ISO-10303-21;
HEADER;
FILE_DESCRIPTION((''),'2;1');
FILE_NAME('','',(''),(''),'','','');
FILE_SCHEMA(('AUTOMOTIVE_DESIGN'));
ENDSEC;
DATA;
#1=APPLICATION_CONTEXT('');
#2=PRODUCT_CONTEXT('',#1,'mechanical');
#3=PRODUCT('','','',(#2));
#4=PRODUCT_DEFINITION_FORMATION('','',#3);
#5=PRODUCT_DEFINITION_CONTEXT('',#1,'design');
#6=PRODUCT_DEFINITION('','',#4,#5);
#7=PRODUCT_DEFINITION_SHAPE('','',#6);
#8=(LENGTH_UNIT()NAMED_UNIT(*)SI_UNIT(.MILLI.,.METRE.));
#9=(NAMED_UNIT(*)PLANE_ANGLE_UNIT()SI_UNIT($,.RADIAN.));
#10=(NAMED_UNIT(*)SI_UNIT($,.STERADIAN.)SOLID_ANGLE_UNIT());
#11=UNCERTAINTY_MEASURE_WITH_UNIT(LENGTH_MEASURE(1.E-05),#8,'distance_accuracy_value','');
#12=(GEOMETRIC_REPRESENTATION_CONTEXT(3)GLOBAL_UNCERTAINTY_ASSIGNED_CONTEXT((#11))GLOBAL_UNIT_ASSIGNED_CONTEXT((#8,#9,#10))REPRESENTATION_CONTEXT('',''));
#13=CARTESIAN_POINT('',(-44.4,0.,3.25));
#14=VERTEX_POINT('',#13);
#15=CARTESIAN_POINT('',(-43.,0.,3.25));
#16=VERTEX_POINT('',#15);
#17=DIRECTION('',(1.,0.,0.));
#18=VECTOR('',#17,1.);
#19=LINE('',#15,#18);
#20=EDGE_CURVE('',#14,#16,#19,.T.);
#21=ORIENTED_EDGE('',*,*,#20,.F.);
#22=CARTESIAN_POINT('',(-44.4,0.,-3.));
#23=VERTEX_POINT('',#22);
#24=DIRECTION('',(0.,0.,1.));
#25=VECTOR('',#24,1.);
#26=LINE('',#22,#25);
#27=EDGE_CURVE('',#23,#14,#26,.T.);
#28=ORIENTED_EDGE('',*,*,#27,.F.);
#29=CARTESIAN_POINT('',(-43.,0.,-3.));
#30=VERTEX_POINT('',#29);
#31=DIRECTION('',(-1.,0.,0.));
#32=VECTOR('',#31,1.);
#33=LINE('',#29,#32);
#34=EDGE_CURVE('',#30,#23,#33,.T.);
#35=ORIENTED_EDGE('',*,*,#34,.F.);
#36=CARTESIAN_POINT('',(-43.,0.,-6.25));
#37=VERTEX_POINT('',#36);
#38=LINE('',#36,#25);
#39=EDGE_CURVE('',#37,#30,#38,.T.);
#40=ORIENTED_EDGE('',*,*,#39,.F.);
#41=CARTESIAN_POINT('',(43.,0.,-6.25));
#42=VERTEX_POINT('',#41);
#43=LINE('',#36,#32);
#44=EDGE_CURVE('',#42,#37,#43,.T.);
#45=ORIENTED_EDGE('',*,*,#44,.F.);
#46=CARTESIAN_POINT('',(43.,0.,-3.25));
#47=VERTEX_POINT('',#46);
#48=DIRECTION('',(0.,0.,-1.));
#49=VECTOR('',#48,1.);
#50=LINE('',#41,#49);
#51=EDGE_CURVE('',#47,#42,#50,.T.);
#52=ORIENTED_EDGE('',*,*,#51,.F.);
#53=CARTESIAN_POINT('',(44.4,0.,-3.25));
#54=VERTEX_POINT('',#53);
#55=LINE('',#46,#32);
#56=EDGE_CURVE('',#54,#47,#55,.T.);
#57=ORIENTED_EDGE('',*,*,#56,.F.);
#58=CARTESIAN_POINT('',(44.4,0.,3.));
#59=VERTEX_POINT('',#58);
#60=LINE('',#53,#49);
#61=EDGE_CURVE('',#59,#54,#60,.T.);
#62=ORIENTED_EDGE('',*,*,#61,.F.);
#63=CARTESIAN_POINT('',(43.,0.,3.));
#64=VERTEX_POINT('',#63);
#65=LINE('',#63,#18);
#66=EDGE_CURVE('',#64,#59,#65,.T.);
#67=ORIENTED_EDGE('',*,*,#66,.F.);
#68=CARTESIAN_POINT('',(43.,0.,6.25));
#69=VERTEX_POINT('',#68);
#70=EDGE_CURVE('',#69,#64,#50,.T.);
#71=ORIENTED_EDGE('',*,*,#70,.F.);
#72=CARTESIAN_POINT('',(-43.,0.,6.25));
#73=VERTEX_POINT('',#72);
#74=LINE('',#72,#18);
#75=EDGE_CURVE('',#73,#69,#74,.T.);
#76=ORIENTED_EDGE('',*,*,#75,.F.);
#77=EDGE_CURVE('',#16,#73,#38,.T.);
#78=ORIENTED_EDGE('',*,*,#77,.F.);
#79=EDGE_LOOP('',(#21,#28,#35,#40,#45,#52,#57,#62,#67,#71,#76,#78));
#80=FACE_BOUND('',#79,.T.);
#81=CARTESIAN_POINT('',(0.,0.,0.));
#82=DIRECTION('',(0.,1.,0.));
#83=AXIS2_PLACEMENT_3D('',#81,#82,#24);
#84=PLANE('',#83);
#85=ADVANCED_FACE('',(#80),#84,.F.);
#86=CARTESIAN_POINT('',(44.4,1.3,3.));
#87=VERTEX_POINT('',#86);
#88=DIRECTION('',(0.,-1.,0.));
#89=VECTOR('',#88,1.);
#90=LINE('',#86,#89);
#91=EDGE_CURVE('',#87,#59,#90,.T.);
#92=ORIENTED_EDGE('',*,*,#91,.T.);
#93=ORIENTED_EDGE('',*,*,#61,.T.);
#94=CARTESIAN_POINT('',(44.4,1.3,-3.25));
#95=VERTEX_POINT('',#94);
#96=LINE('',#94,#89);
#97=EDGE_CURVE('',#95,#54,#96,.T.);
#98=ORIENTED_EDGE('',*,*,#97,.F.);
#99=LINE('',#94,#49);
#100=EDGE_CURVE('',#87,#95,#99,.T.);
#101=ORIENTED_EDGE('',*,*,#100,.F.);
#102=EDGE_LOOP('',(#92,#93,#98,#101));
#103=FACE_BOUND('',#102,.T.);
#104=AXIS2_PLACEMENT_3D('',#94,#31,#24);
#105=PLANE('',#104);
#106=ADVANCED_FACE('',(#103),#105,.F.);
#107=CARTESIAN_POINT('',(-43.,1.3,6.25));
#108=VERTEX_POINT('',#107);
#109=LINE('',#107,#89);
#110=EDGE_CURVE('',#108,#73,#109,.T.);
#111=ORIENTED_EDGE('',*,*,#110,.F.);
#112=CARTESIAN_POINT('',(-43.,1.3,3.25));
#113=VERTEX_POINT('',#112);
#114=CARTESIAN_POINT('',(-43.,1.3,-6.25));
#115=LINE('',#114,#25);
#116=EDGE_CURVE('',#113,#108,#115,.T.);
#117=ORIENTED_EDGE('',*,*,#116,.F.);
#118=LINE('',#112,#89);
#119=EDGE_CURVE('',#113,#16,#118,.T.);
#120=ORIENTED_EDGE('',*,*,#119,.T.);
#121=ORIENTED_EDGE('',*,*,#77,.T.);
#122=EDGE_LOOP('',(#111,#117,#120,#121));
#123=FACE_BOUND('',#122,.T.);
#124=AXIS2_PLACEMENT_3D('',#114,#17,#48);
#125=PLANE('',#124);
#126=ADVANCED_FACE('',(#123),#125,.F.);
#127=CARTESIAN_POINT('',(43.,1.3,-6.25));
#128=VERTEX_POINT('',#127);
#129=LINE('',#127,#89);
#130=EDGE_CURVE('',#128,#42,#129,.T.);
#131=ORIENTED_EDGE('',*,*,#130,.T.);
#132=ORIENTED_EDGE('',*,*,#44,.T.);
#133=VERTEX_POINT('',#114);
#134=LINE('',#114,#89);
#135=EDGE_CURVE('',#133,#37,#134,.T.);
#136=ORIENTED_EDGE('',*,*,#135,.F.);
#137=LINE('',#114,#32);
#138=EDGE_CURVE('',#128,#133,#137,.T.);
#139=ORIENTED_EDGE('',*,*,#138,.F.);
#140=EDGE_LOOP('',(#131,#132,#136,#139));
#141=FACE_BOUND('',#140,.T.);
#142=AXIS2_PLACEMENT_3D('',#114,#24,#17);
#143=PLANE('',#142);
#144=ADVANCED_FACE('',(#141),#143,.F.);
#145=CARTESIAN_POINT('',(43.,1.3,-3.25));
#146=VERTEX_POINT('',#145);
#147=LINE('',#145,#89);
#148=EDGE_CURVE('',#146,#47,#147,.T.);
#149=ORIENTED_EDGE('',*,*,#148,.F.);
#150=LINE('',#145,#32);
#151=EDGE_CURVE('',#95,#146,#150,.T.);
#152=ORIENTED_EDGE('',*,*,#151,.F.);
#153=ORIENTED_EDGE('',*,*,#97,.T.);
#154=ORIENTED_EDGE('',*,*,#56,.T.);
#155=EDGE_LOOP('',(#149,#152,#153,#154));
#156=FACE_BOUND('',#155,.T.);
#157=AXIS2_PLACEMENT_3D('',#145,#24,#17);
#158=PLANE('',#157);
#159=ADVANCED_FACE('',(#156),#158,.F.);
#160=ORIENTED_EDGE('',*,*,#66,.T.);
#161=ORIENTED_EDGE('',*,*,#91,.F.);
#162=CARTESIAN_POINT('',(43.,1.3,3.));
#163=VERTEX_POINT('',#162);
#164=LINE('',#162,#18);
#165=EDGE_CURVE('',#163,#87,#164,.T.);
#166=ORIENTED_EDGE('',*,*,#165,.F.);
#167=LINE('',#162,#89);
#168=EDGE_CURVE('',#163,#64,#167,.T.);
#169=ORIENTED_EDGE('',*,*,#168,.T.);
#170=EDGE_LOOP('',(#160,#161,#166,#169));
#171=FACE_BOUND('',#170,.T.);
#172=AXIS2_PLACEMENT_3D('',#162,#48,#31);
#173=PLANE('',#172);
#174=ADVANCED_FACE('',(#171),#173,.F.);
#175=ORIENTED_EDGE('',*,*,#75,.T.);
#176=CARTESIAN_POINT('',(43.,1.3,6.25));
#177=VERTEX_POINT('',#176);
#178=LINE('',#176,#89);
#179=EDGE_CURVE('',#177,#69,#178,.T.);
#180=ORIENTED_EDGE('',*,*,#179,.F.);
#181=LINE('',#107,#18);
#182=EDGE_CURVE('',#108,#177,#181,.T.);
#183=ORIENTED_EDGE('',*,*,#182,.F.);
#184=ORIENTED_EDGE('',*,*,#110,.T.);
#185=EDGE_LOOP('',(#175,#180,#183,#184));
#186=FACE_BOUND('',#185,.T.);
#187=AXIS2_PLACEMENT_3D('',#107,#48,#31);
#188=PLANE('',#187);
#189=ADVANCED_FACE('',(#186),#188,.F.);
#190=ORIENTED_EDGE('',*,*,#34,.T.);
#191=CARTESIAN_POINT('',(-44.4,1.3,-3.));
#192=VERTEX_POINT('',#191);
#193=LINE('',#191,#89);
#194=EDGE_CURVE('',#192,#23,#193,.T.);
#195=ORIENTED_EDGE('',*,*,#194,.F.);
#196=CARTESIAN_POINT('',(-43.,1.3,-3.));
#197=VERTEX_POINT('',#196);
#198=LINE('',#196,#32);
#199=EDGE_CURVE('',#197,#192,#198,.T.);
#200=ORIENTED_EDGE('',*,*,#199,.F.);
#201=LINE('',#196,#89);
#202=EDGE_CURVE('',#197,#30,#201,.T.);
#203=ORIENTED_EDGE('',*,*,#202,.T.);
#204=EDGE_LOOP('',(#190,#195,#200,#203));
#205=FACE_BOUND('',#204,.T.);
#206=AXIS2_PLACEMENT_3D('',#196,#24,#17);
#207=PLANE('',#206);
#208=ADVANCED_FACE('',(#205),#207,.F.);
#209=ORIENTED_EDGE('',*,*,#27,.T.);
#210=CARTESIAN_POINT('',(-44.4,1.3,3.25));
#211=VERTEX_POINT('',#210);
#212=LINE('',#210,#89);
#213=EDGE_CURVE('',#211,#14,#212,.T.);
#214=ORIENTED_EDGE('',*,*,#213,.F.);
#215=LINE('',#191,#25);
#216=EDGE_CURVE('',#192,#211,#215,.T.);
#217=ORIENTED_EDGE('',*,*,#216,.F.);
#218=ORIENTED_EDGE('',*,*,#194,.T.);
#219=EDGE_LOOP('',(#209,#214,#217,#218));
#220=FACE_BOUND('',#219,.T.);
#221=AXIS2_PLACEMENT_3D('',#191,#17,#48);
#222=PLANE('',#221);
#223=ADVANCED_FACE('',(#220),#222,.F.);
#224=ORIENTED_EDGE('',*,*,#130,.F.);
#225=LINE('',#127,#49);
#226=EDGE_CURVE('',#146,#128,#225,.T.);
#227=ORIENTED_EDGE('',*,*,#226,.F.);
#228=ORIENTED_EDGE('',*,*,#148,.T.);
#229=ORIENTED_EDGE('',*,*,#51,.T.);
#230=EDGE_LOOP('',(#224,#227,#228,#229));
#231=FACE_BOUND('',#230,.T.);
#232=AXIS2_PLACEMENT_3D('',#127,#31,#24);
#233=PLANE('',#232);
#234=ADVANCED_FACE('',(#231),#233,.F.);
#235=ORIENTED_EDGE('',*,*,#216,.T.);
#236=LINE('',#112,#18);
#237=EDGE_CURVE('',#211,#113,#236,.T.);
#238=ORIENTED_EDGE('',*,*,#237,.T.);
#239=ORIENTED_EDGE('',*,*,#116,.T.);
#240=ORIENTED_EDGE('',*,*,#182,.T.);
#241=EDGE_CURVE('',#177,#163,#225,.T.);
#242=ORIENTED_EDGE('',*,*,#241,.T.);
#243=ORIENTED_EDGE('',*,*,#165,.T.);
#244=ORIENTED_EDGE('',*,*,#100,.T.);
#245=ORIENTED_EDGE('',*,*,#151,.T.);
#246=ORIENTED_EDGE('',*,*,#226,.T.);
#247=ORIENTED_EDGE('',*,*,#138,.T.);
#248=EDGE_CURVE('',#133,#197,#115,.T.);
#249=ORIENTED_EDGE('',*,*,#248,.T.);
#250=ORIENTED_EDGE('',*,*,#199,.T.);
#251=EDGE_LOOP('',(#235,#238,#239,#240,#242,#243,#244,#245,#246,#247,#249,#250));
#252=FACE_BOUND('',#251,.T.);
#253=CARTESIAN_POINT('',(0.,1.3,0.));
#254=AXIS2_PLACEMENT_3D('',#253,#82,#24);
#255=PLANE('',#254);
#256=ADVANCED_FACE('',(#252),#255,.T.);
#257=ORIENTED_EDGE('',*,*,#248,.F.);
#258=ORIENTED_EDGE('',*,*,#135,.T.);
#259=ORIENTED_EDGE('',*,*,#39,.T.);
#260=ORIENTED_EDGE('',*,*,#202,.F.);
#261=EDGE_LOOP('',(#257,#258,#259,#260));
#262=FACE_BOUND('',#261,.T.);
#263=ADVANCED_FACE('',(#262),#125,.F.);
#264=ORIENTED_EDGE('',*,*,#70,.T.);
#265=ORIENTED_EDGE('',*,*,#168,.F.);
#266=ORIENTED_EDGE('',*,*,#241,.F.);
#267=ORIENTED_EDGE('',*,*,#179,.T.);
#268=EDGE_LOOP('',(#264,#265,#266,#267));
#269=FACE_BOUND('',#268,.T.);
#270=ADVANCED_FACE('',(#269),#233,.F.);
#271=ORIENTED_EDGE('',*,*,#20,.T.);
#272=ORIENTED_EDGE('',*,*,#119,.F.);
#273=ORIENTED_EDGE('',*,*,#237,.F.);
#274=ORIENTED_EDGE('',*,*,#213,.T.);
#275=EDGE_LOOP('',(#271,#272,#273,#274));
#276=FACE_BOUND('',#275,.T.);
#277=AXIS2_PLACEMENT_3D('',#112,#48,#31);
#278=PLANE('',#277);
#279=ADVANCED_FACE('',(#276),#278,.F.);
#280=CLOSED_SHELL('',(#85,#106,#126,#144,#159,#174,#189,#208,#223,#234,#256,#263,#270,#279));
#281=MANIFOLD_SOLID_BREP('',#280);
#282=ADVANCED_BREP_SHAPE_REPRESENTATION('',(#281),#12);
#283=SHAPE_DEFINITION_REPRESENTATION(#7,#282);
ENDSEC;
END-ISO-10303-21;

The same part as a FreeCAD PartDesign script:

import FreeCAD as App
import Part
import Sketcher

V = App.Vector

doc = App.newDocument("Part")
body = doc.addObject("PartDesign::Body", "Body")

# Sketch on XZ plane
sketch1 = doc.addObject("Sketcher::SketchObject", "Sketch")
body.addObject(sketch1)
sketch1.AttachmentSupport = (doc.XZ_Plane, [""])
sketch1.MapMode = "FlatFace"
sketch1.addGeometry(Part.LineSegment(V(-43, -6, 0), V(-43, 6, 0)), False)
sketch1.addGeometry(Part.LineSegment(V(-43, 6, 0), V(43, 6, 0)), False)
sketch1.addGeometry(Part.LineSegment(V(43, 6, 0), V(43, -6, 0)), False)
sketch1.addGeometry(Part.LineSegment(V(43, -6, 0), V(-43, -6, 0)), False)
sketch1.addConstraint(Sketcher.Constraint("Coincident", 0, 2, 1, 1))
sketch1.addConstraint(Sketcher.Constraint("Coincident", 1, 2, 2, 1))
sketch1.addConstraint(Sketcher.Constraint("Coincident", 2, 2, 3, 1))
sketch1.addConstraint(Sketcher.Constraint("Coincident", 3, 2, 0, 1))
sketch1.addConstraint(Sketcher.Constraint("Vertical", 0))
sketch1.addConstraint(Sketcher.Constraint("Horizontal", 1))
sketch1.addConstraint(Sketcher.Constraint("Vertical", 2))
sketch1.addConstraint(Sketcher.Constraint("Horizontal", 3))
sketch1.addConstraint(Sketcher.Constraint("Symmetric", 0, 2, 2, 2, -1, 1))
sketch1.addConstraint(Sketcher.Constraint("DistanceX", 1, 1, 1, 2, 86.0))
sketch1.addConstraint(Sketcher.Constraint("DistanceY", 0, 1, 0, 2, 12.5))
pad1 = doc.addObject("PartDesign::Pad", "Pad")
body.addObject(pad1)
pad1.Profile = sketch1
pad1.Length = 1.3
pad1.Reversed = True

# Sketch on XZ plane
sketch2 = doc.addObject("Sketcher::SketchObject", "Sketch001")
body.addObject(sketch2)
sketch2.AttachmentSupport = (doc.XZ_Plane, [""])
sketch2.MapMode = "FlatFace"
sketch2.addGeometry(Part.LineSegment(V(-44.4, -3, 0), V(-44.4, 3.2, 0)), False)
sketch2.addGeometry(Part.LineSegment(V(-44.4, 3.2, 0), V(-43, 3.2, 0)), False)
sketch2.addGeometry(Part.LineSegment(V(-43, 3.2, 0), V(-43, -3, 0)), False)
sketch2.addGeometry(Part.LineSegment(V(-43, -3, 0), V(-44.4, -3, 0)), False)
sketch2.addGeometry(Part.LineSegment(V(43, -3.2, 0), V(43, 3, 0)), False)
sketch2.addGeometry(Part.LineSegment(V(43, 3, 0), V(44.4, 3, 0)), False)
sketch2.addGeometry(Part.LineSegment(V(44.4, 3, 0), V(44.4, -3.2, 0)), False)
sketch2.addGeometry(Part.LineSegment(V(44.4, -3.2, 0), V(43, -3.2, 0)), False)
sketch2.addConstraint(Sketcher.Constraint("Coincident", 0, 2, 1, 1))
sketch2.addConstraint(Sketcher.Constraint("Coincident", 1, 2, 2, 1))
sketch2.addConstraint(Sketcher.Constraint("Coincident", 2, 2, 3, 1))
sketch2.addConstraint(Sketcher.Constraint("Coincident", 3, 2, 0, 1))
sketch2.addConstraint(Sketcher.Constraint("Coincident", 4, 2, 5, 1))
sketch2.addConstraint(Sketcher.Constraint("Coincident", 5, 2, 6, 1))
sketch2.addConstraint(Sketcher.Constraint("Coincident", 6, 2, 7, 1))
sketch2.addConstraint(Sketcher.Constraint("Coincident", 7, 2, 4, 1))
sketch2.addConstraint(Sketcher.Constraint("Vertical", 0))
sketch2.addConstraint(Sketcher.Constraint("Horizontal", 1))
sketch2.addConstraint(Sketcher.Constraint("Vertical", 2))
sketch2.addConstraint(Sketcher.Constraint("Horizontal", 3))
sketch2.addConstraint(Sketcher.Constraint("Vertical", 4))
sketch2.addConstraint(Sketcher.Constraint("Horizontal", 5))
sketch2.addConstraint(Sketcher.Constraint("Vertical", 6))
sketch2.addConstraint(Sketcher.Constraint("Horizontal", 7))
sketch2.addConstraint(Sketcher.Constraint("Symmetric", 2, 2, 4, 2, -1, 1))
sketch2.addConstraint(Sketcher.Constraint("Symmetric", 0, 2, 6, 2, -1, 1))
sketch2.addConstraint(Sketcher.Constraint("DistanceX", 1, 1, 1, 2, 1.4))
sketch2.addConstraint(Sketcher.Constraint("DistanceX", 1, 2, -1, 1, 43.0))
sketch2.addConstraint(Sketcher.Constraint("DistanceY", 2, 2, -1, 1, 3.0))
sketch2.addConstraint(Sketcher.Constraint("DistanceY", 0, 1, 0, 2, 6.25))
pad2 = doc.addObject("PartDesign::Pad", "Pad001")
body.addObject(pad2)
pad2.Profile = sketch2
pad2.Length = 1.3
pad2.Reversed = True

doc.recompute()
